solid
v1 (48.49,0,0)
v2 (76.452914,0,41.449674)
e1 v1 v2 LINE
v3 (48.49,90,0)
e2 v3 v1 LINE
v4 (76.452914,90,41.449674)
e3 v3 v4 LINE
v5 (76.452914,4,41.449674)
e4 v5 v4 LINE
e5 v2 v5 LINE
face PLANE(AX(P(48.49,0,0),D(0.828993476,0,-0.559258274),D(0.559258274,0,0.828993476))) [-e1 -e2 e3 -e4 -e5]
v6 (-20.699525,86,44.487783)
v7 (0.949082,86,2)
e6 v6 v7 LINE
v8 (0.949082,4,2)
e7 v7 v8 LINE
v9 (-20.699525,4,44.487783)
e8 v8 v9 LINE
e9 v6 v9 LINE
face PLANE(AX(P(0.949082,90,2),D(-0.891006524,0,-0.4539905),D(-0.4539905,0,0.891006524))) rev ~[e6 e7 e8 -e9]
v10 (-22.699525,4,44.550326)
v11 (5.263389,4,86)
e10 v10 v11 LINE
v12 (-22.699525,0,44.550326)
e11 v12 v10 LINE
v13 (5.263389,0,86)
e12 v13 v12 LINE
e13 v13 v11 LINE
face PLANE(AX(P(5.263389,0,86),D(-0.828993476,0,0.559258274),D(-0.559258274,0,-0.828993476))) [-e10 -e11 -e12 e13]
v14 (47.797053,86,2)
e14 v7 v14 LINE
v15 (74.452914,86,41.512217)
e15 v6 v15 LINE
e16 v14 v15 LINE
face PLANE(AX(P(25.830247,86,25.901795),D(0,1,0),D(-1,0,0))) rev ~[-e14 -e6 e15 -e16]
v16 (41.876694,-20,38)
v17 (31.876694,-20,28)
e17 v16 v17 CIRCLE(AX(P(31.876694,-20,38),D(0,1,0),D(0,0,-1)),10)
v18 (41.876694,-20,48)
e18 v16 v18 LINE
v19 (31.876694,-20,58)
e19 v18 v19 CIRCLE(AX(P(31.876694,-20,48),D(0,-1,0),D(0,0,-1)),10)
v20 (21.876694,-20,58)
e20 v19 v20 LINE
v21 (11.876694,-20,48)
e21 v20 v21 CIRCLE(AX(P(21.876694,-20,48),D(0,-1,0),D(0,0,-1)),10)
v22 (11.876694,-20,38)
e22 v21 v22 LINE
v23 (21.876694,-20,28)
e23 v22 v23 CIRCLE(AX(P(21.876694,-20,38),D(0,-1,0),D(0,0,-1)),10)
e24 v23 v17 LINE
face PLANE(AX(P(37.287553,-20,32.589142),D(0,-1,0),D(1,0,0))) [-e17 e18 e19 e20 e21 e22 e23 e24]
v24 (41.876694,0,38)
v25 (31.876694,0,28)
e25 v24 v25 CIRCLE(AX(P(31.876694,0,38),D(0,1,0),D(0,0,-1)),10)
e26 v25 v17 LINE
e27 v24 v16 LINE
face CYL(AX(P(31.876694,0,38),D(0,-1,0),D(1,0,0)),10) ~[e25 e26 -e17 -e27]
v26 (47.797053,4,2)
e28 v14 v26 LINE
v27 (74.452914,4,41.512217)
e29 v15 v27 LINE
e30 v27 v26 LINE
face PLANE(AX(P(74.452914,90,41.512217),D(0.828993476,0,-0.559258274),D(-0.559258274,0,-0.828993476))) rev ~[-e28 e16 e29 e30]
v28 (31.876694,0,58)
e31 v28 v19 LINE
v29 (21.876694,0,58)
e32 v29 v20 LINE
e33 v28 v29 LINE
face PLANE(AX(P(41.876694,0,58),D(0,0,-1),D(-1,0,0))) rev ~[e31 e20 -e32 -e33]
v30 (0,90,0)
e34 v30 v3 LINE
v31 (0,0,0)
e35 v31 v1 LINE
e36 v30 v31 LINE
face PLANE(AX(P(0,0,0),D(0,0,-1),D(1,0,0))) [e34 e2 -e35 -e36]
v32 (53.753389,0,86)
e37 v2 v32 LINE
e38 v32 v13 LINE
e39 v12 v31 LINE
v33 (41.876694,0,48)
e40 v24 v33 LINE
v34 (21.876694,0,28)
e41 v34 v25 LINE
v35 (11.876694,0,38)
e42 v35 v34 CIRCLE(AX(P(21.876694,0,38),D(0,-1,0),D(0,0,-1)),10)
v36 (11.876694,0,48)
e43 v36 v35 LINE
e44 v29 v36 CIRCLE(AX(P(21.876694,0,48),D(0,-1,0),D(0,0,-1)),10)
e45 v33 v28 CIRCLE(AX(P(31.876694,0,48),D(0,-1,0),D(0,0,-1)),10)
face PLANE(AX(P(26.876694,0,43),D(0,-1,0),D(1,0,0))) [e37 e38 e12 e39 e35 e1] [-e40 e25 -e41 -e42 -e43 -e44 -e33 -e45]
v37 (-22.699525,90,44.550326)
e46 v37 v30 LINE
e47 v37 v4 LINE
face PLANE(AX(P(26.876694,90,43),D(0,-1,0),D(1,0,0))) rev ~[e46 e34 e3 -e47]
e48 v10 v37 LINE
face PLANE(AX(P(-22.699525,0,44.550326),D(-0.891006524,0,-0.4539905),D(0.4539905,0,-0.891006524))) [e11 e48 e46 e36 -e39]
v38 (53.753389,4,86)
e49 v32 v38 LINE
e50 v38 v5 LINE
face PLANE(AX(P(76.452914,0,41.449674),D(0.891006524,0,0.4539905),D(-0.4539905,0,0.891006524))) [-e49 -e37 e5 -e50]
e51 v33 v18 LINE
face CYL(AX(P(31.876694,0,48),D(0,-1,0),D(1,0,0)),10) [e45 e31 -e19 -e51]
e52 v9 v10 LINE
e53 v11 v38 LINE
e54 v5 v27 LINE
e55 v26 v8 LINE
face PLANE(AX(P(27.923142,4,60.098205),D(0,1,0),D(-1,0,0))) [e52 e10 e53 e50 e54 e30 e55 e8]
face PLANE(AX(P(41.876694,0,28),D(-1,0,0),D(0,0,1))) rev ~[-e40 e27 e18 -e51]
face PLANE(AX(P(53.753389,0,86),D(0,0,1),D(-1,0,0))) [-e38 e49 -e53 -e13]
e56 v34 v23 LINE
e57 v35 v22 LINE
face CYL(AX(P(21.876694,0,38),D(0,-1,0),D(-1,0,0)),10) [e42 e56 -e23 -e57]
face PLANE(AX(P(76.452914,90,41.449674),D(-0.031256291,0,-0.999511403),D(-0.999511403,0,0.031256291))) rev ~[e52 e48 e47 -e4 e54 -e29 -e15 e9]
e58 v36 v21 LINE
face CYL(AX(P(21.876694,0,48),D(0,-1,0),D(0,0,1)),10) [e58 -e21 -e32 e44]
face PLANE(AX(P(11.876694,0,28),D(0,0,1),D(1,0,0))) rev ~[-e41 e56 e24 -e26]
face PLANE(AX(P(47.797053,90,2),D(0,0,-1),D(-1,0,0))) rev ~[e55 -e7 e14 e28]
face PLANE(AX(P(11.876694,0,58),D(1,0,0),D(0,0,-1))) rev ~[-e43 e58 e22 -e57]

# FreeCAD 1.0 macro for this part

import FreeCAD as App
import Part
import Sketcher
from FreeCAD import Vector
Q = App.Units.Quantity


def edges_at(feature, points):
    """Names of the edges that pass closest to the given points."""
    edges = feature.Shape.Edges
    near = lambda p: min(range(len(edges)), key=lambda i: edges[i].distToShape(Part.Vertex(*p))[0])
    return sorted({f"Edge{near(p) + 1}" for p in points})


def add_polygon(sketch, points):
    """Adds a closed chain of lines whose ends are joined by coincident constraints."""
    first, n = sketch.GeometryCount, len(points)
    for a, b in zip(points, points[1:] + points[:1]):
        sketch.addGeometry(Part.LineSegment(App.Vector(*a, 0), App.Vector(*b, 0)), False)
    for i in range(n):
        sketch.addConstraint(Sketcher.Constraint("Coincident", first + i, 2, first + (i + 1) % n, 1))

doc = App.newDocument("Part")
body = doc.addObject("PartDesign::Body", "Body")

# Sketch on XZ plane
sketch1 = body.newObject("Sketcher::SketchObject", "Sketch")
sketch1.AttachmentSupport = (doc.getObject("XZ_Plane"), [""])
sketch1.MapMode = "FlatFace"
add_polygon(sketch1, [(-23, 45), (0, 0), (48, 0), (76, 41), (54, 86), (5, 86)])  # lines 0-5
sketch1.addConstraint(Sketcher.Constraint("Horizontal", 1))
sketch1.addConstraint(Sketcher.Constraint("Horizontal", 4))
sketch1.addConstraint(Sketcher.Constraint("Coincident", 0, 2, -1, 1))
sketch1.addConstraint(Sketcher.Constraint("Parallel", 0, 3))
sketch1.addConstraint(Sketcher.Constraint("Parallel", 2, 5))
sketch1.addConstraint(Sketcher.Constraint("Equal", 1, 4))
sketch1.addConstraint(Sketcher.Constraint("Equal", 0, 2))
sketch1.addConstraint(Sketcher.Constraint("Angle", 0, Q("-63 deg")))
sketch1.addConstraint(Sketcher.Constraint("Distance", 0, Q("50 mm")))
sketch1.addConstraint(Sketcher.Constraint("DistanceY", -1, 1, 3, 2, Q("86 mm")))
sketch1.addConstraint(Sketcher.Constraint("DistanceX", 1, 1, 1, 2, Q("48.49 mm")))
pad1 = body.newObject("PartDesign::Pad", "Pad")
pad1.Profile = sketch1
pad1.Length = 90
pad1.Reversed = True

# Sketch on XZ plane
sketch2 = body.newObject("Sketcher::SketchObject", "Sketch001")
sketch2.AttachmentSupport = (doc.getObject("XZ_Plane"), [""])
sketch2.MapMode = "FlatFace"
sketch2.AttachmentOffset = App.Placement(Vector(0, 0, -90), App.Rotation())
add_polygon(sketch2, [(54, 86), (76, 41), (-23, 45), (5, 86)])  # lines 0-3
sketch2.addConstraint(Sketcher.Constraint("Horizontal", 3))
sketch2.addConstraint(Sketcher.Constraint("Equal", 0, 2))
sketch2.addConstraint(Sketcher.Constraint("Angle", 0, Q("-63 deg")))
sketch2.addConstraint(Sketcher.Constraint("Distance", 0, Q("50 mm")))
sketch2.addConstraint(Sketcher.Constraint("DistanceY", -1, 1, 2, 2, Q("86 mm")))
sketch2.addConstraint(Sketcher.Constraint("DistanceX", 3, 1, 3, 2, Q("48.49 mm")))
sketch2.addConstraint(Sketcher.Constraint("DistanceX", -1, 1, 2, 2, Q("5.263389 mm")))
sketch2.addConstraint(Sketcher.Constraint("DistanceX", 1, 2, 0, 2, Q("99.152439 mm")))
pocket1 = body.newObject("PartDesign::Pocket", "Pocket")
pocket1.Profile = sketch2
pocket1.Length = 86
pocket1.Reversed = True

# Sketch on XZ plane
sketch3 = body.newObject("Sketcher::SketchObject", "Sketch002")
sketch3.AttachmentSupport = (doc.getObject("XZ_Plane"), [""])
sketch3.MapMode = "FlatFace"
sketch3.AttachmentOffset = App.Placement(Vector(0, 0, -90), App.Rotation())
add_polygon(sketch3, [(74, 42), (48, 2), (1, 2), (-21, 44)])  # lines 0-3
sketch3.addConstraint(Sketcher.Constraint("Horizontal", 1))
sketch3.addConstraint(Sketcher.Constraint("Angle", 2, Q("117 deg")))
sketch3.addConstraint(Sketcher.Constraint("DistanceY", -1, 1, 0, 2, Q("2 mm")))
sketch3.addConstraint(Sketcher.Constraint("DistanceX", 1, 2, 1, 1, Q("46.847972 mm")))
sketch3.addConstraint(Sketcher.Constraint("Distance", 0, Q("47.66288 mm")))
sketch3.addConstraint(Sketcher.Constraint("DistanceX", -1, 1, 1, 2, Q("0.949082 mm")))
sketch3.addConstraint(Sketcher.Constraint("DistanceX", 2, 2, 0, 2, Q("68.496578 mm")))
sketch3.addConstraint(Sketcher.Constraint("DistanceX", 0, 2, 3, 2, Q("26.65586 mm")))
pocket2 = body.newObject("PartDesign::Pocket", "Pocket001")
pocket2.Profile = sketch3
pocket2.Length = 86
pocket2.Reversed = True

# Sketch on XZ plane
sketch4 = body.newObject("Sketcher::SketchObject", "Sketch003")
sketch4.AttachmentSupport = (doc.getObject("XZ_Plane"), [""])
sketch4.MapMode = "FlatFace"
sketch4.AttachmentOffset = App.Placement(Vector(0, 0, -90), App.Rotation())
add_polygon(sketch4, [(-23, 45), (76, 41), (48, 0), (0, 0)])  # lines 0-3
sketch4.addConstraint(Sketcher.Constraint("Horizontal", 2))
sketch4.addConstraint(Sketcher.Constraint("Coincident", 2, 2, -1, 1))
sketch4.addConstraint(Sketcher.Constraint("Equal", 1, 3))
sketch4.addConstraint(Sketcher.Constraint("Angle", 3, Q("117 deg")))
sketch4.addConstraint(Sketcher.Constraint("Distance", 1, Q("50 mm")))
sketch4.addConstraint(Sketcher.Constraint("DistanceX", 2, 2, 2, 1, Q("48.49 mm")))
sketch4.addConstraint(Sketcher.Constraint("DistanceX", 3, 2, 0, 2, Q("99.152439 mm")))
pad2 = body.newObject("PartDesign::Pad", "Pad001")
pad2.Profile = sketch4
pad2.Length = 4

# Sketch on XZ plane
sketch5 = body.newObject("Sketcher::SketchObject", "Sketch004")
sketch5.AttachmentSupport = (doc.getObject("XZ_Plane"), [""])
sketch5.MapMode = "FlatFace"
add_polygon(sketch5, [(42, 28), (42, 58), (12, 58), (12, 28)])  # lines 0-3
sketch5.addConstraint(Sketcher.Constraint("Vertical", 0))
sketch5.addConstraint(Sketcher.Constraint("Horizontal", 1))
sketch5.addConstraint(Sketcher.Constraint("Vertical", 2))
sketch5.addConstraint(Sketcher.Constraint("Horizontal", 3))
sketch5.addConstraint(Sketcher.Constraint("Equal", 3, 0))
sketch5.addConstraint(Sketcher.Constraint("DistanceX", 1, 2, 1, 1, Q("30 mm")))
sketch5.addConstraint(Sketcher.Constraint("DistanceY", -1, 1, 0, 2, Q("58 mm")))
sketch5.addConstraint(Sketcher.Constraint("DistanceX", -1, 1, 0, 2, Q("41.876694 mm")))
pad3 = body.newObject("PartDesign::Pad", "Pad002")
pad3.Profile = sketch5
pad3.Length = 20
doc.recompute()

fillet = body.newObject("PartDesign::Fillet", "Fillet")
fillet.Base = (pad3, edges_at(pad3, [
    (11.877, -10, 58),
    (41.877, -10, 58),
    (11.877, -10, 28),
    (41.877, -10, 28),
]))
fillet.Radius = 10

doc.recompute()
